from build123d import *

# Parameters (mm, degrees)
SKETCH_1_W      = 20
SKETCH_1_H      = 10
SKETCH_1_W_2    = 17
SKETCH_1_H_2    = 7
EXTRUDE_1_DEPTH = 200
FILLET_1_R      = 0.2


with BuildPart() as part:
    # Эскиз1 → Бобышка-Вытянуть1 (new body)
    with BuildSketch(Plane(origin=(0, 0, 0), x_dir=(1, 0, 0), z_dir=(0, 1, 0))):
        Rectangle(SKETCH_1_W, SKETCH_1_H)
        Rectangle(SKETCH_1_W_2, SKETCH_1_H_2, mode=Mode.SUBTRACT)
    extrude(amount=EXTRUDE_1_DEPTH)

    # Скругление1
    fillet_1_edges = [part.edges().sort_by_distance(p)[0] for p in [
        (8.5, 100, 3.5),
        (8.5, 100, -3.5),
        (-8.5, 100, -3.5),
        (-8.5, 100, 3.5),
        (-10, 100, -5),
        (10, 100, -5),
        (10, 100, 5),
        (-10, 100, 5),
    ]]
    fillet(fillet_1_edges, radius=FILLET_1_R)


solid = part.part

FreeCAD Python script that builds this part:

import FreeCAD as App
import Part
import Sketcher


def edges_at(feature, points):
    """Names of the edges that pass closest to the given points."""
    edges = feature.Shape.Edges
    near = lambda p: min(range(len(edges)), key=lambda i: edges[i].distToShape(Part.Vertex(*p))[0])
    return sorted({f"Edge{near(p) + 1}" for p in points})


def add_polygon(sketch, points):
    """Adds a closed chain of lines whose ends are joined by coincident constraints."""
    first, n = sketch.GeometryCount, len(points)
    for a, b in zip(points, points[1:] + points[:1]):
        sketch.addGeometry(Part.LineSegment(App.Vector(*a, 0), App.Vector(*b, 0)), False)
    for i in range(n):
        sketch.addConstraint(Sketcher.Constraint("Coincident", first + i, 2, first + (i + 1) % n, 1))

doc = App.newDocument("Part")
body = doc.addObject("PartDesign::Body", "Body")

# Sketch on XZ plane
sketch1 = doc.addObject("Sketcher::SketchObject", "Sketch")
body.addObject(sketch1)
sketch1.AttachmentSupport = (doc.XZ_Plane, [""])
sketch1.MapMode = "FlatFace"
add_polygon(sketch1, [(-10, -5), (-10, 5), (10, 5), (10, -5)])  # lines 0-3
add_polygon(sketch1, [(8.5, 3.5), (-8.5, 3.5), (-8.5, -3.5), (8.5, -3.5)])  # lines 4-7
sketch1.addConstraint([
    Sketcher.Constraint("Vertical", 0),
    Sketcher.Constraint("Horizontal", 1),
    Sketcher.Constraint("Vertical", 2),
    Sketcher.Constraint("Horizontal", 3),
    Sketcher.Constraint("Horizontal", 4),
    Sketcher.Constraint("Vertical", 5),
    Sketcher.Constraint("Horizontal", 6),
    Sketcher.Constraint("Vertical", 7),
    Sketcher.Constraint("Symmetric", 0, 2, 2, 2, -1, 1),
    Sketcher.Constraint("Symmetric", 4, 2, 6, 2, -1, 1),
    Sketcher.Constraint("DistanceX", 1, 1, 1, 2, 20.0),
    Sketcher.Constraint("DistanceX", 4, 2, 4, 1, 17.0),
    Sketcher.Constraint("DistanceY", 0, 1, 0, 2, 10.0),
    Sketcher.Constraint("DistanceY", 5, 2, 5, 1, 7.0),
])
pad1 = doc.addObject("PartDesign::Pad", "Pad")
body.addObject(pad1)
pad1.Profile = sketch1
pad1.Length = 200
pad1.Reversed = True
doc.recompute()

fillet = doc.addObject("PartDesign::Fillet", "Fillet")
body.addObject(fillet)
fillet.Base = (pad1, edges_at(pad1, [
    (8.5, 100, 3.5),
    (8.5, 100, -3.5),
    (-8.5, 100, -3.5),
    (-8.5, 100, 3.5),
    (-10, 100, -5),
    (10, 100, -5),
    (10, 100, 5),
    (-10, 100, 5),
]))
fillet.Radius = 0.2

doc.recompute()
